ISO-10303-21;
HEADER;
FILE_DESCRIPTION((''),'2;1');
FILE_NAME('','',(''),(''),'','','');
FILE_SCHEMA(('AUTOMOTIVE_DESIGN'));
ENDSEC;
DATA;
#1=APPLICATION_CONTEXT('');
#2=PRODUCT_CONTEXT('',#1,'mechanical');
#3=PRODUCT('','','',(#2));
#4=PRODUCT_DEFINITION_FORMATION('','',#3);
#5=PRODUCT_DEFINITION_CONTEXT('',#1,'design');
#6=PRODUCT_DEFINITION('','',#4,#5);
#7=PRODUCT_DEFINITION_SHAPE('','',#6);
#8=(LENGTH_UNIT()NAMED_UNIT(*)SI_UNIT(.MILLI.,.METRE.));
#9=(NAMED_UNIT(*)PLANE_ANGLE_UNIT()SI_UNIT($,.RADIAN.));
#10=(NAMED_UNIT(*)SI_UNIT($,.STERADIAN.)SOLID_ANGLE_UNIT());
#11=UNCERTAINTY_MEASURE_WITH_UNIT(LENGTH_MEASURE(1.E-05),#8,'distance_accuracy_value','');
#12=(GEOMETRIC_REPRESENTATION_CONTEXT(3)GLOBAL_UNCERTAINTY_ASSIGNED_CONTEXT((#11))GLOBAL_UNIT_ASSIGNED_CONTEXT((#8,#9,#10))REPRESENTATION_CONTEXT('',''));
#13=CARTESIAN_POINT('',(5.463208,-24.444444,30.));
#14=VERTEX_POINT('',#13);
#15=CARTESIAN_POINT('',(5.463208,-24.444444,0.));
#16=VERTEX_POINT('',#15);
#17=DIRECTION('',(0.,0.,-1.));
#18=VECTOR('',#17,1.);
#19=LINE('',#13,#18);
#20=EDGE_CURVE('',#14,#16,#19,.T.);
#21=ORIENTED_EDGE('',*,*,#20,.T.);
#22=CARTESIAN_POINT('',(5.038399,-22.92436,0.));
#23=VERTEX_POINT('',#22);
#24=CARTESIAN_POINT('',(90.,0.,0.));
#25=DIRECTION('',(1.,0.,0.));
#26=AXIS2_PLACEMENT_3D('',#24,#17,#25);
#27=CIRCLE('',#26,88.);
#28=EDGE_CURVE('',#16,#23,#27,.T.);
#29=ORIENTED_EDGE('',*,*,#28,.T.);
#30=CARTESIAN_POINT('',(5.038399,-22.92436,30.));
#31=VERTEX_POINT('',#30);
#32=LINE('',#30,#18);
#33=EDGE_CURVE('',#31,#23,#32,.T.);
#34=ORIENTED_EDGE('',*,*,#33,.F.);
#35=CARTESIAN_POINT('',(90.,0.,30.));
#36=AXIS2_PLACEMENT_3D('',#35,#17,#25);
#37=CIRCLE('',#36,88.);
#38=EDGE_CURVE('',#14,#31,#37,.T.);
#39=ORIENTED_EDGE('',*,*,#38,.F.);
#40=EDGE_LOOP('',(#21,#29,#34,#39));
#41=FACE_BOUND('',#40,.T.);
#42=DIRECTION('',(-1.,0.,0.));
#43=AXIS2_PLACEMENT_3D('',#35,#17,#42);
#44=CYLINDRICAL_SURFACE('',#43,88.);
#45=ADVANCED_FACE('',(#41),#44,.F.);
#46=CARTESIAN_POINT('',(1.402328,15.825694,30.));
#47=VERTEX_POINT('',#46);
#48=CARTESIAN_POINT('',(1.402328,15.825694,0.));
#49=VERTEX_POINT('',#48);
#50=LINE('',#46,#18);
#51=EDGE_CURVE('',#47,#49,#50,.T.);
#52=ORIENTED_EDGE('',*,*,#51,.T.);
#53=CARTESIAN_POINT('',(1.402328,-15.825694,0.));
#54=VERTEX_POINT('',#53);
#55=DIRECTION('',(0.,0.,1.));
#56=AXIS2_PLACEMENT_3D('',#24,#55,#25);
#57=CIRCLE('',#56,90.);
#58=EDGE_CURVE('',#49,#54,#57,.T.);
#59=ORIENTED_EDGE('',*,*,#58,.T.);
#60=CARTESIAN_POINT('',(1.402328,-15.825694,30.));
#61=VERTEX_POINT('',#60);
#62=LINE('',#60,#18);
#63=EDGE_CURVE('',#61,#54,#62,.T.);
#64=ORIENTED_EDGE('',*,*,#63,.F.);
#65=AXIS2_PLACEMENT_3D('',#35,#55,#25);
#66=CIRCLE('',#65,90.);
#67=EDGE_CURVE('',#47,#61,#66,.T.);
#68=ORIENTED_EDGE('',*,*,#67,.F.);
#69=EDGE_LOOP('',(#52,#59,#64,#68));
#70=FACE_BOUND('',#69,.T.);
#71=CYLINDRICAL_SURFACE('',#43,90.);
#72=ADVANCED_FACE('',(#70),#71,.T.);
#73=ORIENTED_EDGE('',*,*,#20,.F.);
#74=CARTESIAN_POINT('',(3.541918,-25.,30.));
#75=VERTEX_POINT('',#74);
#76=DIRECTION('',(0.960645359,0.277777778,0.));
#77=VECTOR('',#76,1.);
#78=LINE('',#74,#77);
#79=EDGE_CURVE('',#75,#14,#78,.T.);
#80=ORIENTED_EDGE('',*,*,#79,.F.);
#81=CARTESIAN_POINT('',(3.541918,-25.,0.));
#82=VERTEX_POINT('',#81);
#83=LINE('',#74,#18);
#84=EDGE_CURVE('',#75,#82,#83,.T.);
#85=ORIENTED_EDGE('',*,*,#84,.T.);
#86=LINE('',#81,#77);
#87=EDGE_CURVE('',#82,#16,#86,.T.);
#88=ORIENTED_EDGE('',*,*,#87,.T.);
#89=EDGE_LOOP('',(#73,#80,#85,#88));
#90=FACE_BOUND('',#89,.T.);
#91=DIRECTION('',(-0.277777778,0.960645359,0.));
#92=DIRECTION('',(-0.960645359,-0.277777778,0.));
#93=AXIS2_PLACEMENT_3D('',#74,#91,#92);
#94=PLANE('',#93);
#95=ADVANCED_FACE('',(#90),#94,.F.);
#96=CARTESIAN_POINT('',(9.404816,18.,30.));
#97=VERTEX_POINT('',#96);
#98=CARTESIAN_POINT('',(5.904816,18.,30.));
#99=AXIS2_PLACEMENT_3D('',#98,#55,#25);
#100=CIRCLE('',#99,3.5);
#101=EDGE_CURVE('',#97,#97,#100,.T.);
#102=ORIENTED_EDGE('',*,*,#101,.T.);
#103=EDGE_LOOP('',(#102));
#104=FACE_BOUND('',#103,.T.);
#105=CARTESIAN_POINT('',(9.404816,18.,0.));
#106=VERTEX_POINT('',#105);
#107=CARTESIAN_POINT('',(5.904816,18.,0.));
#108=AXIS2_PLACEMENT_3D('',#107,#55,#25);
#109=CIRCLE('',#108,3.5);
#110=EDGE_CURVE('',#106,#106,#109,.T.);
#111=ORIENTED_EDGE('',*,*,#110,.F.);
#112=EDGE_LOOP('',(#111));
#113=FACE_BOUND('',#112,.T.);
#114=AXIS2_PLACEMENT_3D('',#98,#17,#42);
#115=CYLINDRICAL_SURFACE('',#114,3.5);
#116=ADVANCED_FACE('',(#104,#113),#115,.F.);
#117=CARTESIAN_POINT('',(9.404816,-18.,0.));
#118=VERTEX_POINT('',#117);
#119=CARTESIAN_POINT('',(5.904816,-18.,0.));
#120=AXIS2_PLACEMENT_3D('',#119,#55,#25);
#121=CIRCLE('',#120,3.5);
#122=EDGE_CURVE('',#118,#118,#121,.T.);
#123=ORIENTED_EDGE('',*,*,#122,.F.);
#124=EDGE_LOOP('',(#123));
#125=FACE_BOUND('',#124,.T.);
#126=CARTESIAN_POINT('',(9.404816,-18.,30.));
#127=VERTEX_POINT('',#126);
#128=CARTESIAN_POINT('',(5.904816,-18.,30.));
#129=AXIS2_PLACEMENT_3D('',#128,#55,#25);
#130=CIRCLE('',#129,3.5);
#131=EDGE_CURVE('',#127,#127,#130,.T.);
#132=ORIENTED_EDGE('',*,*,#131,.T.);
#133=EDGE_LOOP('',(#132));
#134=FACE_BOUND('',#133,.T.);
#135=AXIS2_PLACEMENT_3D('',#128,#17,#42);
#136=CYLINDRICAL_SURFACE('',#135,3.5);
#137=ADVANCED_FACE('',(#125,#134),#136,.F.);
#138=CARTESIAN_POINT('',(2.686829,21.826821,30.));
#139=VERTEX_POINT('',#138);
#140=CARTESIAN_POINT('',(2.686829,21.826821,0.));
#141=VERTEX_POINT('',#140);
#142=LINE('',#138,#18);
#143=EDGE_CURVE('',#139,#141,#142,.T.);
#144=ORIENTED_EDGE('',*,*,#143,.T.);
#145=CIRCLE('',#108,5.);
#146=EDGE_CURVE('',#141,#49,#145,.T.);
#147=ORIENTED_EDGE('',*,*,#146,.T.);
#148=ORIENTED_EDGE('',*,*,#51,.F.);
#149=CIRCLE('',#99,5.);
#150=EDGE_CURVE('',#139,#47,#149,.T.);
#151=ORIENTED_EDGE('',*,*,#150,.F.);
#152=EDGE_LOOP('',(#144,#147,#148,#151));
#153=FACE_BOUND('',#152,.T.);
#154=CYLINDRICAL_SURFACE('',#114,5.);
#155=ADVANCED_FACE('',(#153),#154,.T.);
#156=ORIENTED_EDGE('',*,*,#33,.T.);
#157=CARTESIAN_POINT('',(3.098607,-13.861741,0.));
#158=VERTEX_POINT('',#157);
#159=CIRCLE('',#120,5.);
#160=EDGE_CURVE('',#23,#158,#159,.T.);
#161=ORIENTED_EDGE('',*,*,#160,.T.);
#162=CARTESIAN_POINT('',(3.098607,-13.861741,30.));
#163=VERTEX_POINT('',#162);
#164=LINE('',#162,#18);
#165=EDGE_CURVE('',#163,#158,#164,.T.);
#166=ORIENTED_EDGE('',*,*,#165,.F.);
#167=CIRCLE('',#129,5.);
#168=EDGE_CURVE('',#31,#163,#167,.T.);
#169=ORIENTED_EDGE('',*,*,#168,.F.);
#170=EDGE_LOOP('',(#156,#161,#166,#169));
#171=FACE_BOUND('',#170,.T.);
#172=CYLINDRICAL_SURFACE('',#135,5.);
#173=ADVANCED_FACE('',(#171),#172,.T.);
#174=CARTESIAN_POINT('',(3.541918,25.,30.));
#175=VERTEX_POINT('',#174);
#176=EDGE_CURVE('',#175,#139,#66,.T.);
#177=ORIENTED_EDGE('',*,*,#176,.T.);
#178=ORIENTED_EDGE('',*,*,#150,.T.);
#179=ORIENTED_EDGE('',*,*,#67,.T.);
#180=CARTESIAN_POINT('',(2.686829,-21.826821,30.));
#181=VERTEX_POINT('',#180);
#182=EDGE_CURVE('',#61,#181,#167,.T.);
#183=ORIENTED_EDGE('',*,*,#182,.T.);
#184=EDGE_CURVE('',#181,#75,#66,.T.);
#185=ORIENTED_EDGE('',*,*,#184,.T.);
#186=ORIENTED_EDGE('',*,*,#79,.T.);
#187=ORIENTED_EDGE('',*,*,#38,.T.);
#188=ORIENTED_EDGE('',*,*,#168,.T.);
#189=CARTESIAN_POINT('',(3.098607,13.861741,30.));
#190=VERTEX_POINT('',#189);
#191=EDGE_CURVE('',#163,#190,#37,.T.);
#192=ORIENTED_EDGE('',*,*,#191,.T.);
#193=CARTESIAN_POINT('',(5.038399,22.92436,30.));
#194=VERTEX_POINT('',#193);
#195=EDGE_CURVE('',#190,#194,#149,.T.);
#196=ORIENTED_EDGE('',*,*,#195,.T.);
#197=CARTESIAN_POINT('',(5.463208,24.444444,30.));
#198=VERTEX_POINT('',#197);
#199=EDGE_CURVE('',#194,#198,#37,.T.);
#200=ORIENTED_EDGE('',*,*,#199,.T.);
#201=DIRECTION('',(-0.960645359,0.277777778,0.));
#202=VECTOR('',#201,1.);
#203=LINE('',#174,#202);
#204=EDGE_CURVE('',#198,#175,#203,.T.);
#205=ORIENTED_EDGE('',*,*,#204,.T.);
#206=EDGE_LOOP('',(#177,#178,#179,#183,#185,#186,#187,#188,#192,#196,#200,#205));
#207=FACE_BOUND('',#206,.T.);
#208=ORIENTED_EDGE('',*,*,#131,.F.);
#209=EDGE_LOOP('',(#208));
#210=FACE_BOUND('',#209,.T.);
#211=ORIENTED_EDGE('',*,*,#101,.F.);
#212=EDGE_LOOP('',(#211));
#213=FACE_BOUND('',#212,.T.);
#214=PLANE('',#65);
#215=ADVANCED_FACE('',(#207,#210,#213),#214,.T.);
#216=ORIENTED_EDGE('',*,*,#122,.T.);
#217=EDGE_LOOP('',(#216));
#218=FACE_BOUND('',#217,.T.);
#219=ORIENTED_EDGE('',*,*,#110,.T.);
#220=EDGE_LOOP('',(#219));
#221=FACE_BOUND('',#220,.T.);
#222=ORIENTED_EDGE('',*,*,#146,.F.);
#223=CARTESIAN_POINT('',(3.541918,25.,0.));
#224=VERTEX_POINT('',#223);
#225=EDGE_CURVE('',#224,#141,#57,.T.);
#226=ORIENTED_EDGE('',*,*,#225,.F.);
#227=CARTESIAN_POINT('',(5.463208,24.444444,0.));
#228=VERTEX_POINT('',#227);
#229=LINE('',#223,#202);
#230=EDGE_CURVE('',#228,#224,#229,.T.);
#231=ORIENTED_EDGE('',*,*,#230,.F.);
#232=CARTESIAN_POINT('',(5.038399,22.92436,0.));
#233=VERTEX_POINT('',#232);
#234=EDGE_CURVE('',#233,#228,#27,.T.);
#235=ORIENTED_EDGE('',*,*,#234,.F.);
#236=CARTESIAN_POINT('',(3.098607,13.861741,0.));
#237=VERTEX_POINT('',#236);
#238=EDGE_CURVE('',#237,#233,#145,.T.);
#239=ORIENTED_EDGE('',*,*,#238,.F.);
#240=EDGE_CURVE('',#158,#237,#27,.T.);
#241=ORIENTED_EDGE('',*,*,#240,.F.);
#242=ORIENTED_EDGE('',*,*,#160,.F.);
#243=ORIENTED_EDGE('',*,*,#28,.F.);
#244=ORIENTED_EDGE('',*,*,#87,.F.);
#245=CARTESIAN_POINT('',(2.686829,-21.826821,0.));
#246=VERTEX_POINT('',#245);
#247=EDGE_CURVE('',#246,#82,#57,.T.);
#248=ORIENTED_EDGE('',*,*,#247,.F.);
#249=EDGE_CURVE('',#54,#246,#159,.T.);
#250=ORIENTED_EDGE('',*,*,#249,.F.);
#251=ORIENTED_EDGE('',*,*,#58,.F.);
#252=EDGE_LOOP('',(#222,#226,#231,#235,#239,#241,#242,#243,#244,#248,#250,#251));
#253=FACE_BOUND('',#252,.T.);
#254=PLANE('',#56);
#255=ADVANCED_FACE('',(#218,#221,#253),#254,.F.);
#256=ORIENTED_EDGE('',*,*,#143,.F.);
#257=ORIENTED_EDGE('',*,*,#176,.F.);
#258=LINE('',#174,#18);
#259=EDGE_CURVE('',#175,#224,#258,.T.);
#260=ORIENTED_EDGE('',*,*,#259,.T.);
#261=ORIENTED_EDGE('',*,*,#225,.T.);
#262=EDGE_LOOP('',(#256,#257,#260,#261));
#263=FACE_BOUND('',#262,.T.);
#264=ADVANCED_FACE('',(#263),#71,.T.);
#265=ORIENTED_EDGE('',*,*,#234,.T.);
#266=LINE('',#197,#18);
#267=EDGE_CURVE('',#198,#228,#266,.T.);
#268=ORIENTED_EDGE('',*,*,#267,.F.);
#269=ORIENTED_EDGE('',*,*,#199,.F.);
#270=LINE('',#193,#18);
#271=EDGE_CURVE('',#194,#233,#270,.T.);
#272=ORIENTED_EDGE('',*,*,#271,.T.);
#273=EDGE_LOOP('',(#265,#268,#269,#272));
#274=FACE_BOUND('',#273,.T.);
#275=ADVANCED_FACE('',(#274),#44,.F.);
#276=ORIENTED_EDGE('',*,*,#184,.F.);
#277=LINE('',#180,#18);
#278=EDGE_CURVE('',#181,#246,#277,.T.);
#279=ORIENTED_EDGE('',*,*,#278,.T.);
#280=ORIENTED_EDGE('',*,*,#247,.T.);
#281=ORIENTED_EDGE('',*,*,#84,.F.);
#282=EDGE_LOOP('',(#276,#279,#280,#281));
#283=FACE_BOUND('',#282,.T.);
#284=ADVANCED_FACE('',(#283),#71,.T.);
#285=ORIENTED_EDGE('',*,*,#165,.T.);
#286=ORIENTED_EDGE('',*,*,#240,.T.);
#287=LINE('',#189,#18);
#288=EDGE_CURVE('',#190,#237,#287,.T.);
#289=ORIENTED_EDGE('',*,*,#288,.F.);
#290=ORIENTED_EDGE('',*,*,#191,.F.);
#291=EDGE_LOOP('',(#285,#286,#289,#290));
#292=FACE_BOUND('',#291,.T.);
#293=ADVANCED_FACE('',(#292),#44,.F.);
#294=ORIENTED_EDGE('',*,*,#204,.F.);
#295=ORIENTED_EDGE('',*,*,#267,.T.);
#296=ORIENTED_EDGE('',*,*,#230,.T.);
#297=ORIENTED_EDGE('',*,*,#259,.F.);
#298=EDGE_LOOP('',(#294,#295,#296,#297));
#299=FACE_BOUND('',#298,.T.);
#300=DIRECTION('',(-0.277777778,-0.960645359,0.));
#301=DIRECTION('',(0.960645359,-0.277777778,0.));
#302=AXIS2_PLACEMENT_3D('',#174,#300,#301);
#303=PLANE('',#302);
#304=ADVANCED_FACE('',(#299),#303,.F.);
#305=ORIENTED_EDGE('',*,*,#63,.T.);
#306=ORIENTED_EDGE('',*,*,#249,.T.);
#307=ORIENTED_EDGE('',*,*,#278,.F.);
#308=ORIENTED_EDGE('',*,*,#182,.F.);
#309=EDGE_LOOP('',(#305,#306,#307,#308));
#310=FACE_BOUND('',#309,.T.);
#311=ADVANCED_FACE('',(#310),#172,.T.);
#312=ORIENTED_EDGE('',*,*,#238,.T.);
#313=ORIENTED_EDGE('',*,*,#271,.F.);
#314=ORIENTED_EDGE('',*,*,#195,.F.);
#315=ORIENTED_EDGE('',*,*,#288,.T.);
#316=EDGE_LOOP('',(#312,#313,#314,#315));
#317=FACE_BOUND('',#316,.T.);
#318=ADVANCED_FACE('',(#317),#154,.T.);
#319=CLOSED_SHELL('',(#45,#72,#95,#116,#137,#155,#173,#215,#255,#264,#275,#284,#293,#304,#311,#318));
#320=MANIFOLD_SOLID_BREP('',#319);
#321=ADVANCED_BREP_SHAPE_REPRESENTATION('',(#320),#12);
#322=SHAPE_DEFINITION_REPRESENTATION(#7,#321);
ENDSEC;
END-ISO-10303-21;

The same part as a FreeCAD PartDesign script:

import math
import FreeCAD as App
import Part
import Sketcher

doc = App.newDocument("Part")
body = doc.addObject("PartDesign::Body", "Body")

# Sketch on XY plane
sketch1 = body.newObject("Sketcher::SketchObject", "Sketch")
sketch1.AttachmentSupport = (doc.getObject("XY_Plane"), [""])
sketch1.MapMode = "FlatFace"
sketch1.addGeometry([
    Part.LineSegment(App.Vector(5.463208, 24.444444, 0), App.Vector(3.541918, 25, 0)),  # 0
    Part.ArcOfCircle(Part.Circle(App.Vector(90.000001, 0, 0), App.Vector(0, 0, 1), 90.000001), math.radians(163.87238), math.radians(165.964666)),  # 1
    Part.ArcOfCircle(Part.Circle(App.Vector(5.904816, 18, 0), App.Vector(0, 0, 1), 5), math.radians(130.060597), math.radians(205.776463)),  # 2
    Part.ArcOfCircle(Part.Circle(App.Vector(90, 0, 0), App.Vector(0, 0, 1), 90), math.radians(169.872395), math.radians(190.127605)),  # 3
    Part.ArcOfCircle(Part.Circle(App.Vector(5.904816, -18, 0), App.Vector(0, 0, 1), 5), math.radians(154.223537), math.radians(229.939403)),  # 4
    Part.ArcOfCircle(Part.Circle(App.Vector(90.000001, 0, 0), App.Vector(0, 0, 1), 90.000001), math.radians(-165.964666), math.radians(-163.87238)),  # 5
    Part.LineSegment(App.Vector(3.541918, -25, 0), App.Vector(5.463208, -24.444444, 0)),  # 6
    Part.ArcOfCircle(Part.Circle(App.Vector(90.000006, 0.000002, 0), App.Vector(0, 0, 1), 88.000007), math.radians(-164.900025), math.radians(-163.87238)),  # 7
    Part.ArcOfCircle(Part.Circle(App.Vector(5.904816, -18, 0), App.Vector(0, 0, 1), 5), math.radians(-99.978781), math.radians(124.141721)),  # 8
    Part.ArcOfCircle(Part.Circle(App.Vector(90, 0, 0), App.Vector(0, 0, 1), 88), math.radians(170.937035), math.radians(189.062965)),  # 9
    Part.ArcOfCircle(Part.Circle(App.Vector(5.904816, 18, 0), App.Vector(0, 0, 1), 5), math.radians(-124.141721), math.radians(99.978781)),  # 10
    Part.ArcOfCircle(Part.Circle(App.Vector(90.000006, -0.000002, 0), App.Vector(0, 0, 1), 88.000007), math.radians(163.87238), math.radians(164.900025)),  # 11
    Part.Circle(App.Vector(5.904816, -18, 0), App.Vector(0, 0, 1), 3.5),  # 12
    Part.Circle(App.Vector(5.904816, 18, 0), App.Vector(0, 0, 1), 3.5),  # 13
], False)
sketch1.addConstraint([
    Sketcher.Constraint("Coincident", 0, 2, 1, 1),
    Sketcher.Constraint("Coincident", 1, 2, 2, 1),
    Sketcher.Constraint("Coincident", 2, 2, 3, 1),
    Sketcher.Constraint("Coincident", 3, 2, 4, 1),
    Sketcher.Constraint("Coincident", 4, 2, 5, 1),
    Sketcher.Constraint("Coincident", 5, 2, 6, 1),
    Sketcher.Constraint("Coincident", 6, 2, 7, 2),
    Sketcher.Constraint("Coincident", 7, 1, 8, 1),
    Sketcher.Constraint("Coincident", 8, 2, 9, 2),
    Sketcher.Constraint("Coincident", 9, 1, 10, 1),
    Sketcher.Constraint("Coincident", 10, 2, 11, 2),
    Sketcher.Constraint("Coincident", 11, 1, 0, 1),
    Sketcher.Constraint("Coincident", 3, 3, 1, 3),
    Sketcher.Constraint("Coincident", 5, 3, 1, 3),
    Sketcher.Constraint("Coincident", 7, 3, 1, 3),
    Sketcher.Constraint("Coincident", 8, 3, 4, 3),
    Sketcher.Constraint("Coincident", 9, 3, 1, 3),
    Sketcher.Constraint("Coincident", 10, 3, 2, 3),
    Sketcher.Constraint("Coincident", 11, 3, 1, 3),
    Sketcher.Constraint("Coincident", 12, 3, 4, 3),
    Sketcher.Constraint("Coincident", 13, 3, 2, 3),
    Sketcher.Constraint("Equal", 1, 3),
    Sketcher.Constraint("Equal", 2, 4),
    Sketcher.Constraint("Equal", 3, 5),
    Sketcher.Constraint("Equal", 4, 8),
    Sketcher.Constraint("Equal", 8, 10),
    Sketcher.Constraint("Equal", 7, 11),
    Sketcher.Constraint("Equal", 12, 13),
    Sketcher.Constraint("Symmetric", 2, 3, 4, 3, -1),
    Sketcher.Constraint("Symmetric", 0, 2, 5, 2, -1),
    Sketcher.Constraint("Vertical", 6, 2, 11, 1),
    Sketcher.Constraint("Diameter", 12, 7.0),
    Sketcher.Constraint("Radius", 1, 90.000001),
    Sketcher.Constraint("Radius", 2, 5.0),
    Sketcher.Constraint("Radius", 9, 88.0),
    Sketcher.Constraint("Distance", 0, 2.0),
    Sketcher.Constraint("DistanceX", -1, 1, 1, 3, 90.000001),
    Sketcher.Constraint("DistanceY", -1, 1, 2, 3, 18.0),
    Sketcher.Constraint("DistanceY", -1, 1, 0, 2, 25.0),
    Sketcher.Constraint("DistanceX", -1, 1, 10, 2, 5.038399),
    Sketcher.Constraint("DistanceX", -1, 1, 6, 2, 5.463208),
])
pad1 = body.newObject("PartDesign::Pad", "Pad")
pad1.Profile = sketch1
pad1.Length = 30

doc.recompute()
